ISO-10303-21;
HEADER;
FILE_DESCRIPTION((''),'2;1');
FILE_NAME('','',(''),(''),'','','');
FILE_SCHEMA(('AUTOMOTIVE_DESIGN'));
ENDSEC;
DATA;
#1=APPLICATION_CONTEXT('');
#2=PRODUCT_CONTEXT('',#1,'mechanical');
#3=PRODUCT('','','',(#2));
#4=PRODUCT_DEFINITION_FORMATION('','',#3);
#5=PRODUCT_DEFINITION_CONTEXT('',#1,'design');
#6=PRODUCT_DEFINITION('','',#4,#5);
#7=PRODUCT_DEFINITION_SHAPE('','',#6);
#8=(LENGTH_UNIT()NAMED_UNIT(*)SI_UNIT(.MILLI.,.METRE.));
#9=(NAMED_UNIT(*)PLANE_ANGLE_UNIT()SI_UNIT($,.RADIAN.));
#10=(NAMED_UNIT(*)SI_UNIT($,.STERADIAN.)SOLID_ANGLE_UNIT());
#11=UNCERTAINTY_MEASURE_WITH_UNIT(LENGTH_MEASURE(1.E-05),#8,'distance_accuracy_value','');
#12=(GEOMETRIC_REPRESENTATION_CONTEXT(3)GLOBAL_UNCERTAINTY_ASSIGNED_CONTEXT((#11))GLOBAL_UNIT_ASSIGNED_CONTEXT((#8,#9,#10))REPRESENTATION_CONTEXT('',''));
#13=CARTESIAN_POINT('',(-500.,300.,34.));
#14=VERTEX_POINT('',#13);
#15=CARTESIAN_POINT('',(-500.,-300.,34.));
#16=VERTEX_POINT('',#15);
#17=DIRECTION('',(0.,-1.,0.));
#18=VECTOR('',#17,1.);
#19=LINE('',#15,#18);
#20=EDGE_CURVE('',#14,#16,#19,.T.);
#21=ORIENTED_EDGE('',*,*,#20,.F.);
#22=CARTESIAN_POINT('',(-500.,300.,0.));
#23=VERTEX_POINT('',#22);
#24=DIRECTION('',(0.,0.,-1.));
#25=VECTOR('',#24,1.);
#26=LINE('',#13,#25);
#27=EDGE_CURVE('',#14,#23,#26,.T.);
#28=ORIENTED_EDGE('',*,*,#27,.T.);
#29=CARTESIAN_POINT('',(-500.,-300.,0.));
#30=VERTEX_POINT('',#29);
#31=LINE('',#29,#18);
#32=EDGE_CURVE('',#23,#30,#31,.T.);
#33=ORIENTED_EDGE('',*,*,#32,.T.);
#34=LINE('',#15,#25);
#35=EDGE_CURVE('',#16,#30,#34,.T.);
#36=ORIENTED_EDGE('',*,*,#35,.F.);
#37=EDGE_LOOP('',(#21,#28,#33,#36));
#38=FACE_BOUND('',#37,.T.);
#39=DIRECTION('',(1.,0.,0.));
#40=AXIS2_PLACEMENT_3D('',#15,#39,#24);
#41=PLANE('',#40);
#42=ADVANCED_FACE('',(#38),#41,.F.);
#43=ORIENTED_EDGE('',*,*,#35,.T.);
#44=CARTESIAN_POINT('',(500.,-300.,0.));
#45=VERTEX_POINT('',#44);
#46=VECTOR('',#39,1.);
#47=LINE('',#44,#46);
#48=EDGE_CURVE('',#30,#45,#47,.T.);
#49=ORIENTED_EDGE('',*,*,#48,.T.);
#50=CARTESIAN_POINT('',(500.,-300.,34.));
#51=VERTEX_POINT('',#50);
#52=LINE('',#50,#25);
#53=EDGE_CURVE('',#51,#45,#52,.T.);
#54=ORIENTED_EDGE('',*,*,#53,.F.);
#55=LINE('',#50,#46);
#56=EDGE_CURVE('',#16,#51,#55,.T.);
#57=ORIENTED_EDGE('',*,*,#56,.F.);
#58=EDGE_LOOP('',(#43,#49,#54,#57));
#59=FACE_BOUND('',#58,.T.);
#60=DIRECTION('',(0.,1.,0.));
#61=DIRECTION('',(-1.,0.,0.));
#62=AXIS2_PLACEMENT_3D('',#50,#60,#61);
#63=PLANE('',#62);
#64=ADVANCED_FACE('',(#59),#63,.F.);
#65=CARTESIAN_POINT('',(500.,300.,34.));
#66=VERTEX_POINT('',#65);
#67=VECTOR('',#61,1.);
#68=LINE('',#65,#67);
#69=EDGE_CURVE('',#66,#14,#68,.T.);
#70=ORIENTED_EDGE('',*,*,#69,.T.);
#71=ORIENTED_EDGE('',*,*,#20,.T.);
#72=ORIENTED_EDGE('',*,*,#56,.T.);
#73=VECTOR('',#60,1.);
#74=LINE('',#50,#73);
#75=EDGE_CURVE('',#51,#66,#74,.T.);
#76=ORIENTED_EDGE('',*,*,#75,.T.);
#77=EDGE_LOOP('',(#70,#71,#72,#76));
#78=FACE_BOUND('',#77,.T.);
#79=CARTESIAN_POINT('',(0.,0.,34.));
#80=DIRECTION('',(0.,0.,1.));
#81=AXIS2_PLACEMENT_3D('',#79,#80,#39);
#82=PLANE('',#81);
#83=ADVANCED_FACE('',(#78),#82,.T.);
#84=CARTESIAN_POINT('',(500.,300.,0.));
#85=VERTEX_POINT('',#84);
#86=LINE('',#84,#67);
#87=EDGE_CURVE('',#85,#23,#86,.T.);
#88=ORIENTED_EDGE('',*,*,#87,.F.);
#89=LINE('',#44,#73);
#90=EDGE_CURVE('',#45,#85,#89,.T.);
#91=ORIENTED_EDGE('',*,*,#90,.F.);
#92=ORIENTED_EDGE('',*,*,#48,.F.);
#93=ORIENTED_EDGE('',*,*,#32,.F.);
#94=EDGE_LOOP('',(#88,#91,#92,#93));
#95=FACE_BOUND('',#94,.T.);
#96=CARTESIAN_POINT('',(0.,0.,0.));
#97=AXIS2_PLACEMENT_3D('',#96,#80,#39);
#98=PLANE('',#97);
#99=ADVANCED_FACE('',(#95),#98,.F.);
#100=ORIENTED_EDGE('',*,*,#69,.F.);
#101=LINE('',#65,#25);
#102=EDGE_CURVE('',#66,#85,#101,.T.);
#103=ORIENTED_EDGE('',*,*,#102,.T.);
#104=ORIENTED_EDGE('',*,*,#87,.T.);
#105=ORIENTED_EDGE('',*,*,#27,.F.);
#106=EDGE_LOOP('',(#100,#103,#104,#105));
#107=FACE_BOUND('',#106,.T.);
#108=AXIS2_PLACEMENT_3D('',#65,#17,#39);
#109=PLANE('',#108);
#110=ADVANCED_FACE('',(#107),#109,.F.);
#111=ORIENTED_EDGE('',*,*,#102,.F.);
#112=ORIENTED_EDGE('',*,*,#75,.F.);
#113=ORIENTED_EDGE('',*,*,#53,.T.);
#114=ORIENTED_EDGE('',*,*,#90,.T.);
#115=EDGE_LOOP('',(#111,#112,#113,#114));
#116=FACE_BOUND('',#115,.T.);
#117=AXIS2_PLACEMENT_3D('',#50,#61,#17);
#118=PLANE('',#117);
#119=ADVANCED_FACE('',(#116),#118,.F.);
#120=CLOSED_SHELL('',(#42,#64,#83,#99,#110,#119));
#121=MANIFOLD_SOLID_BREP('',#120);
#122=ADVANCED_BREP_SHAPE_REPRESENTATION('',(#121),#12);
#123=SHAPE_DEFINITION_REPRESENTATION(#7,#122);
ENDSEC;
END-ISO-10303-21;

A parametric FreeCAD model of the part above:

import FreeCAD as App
import Part
import Sketcher

V = App.Vector


def add_polygon(sketch, points):
    """Adds a closed chain of lines whose ends are joined by coincident constraints."""
    first, n = sketch.GeometryCount, len(points)
    for a, b in zip(points, points[1:] + points[:1]):
        sketch.addGeometry(Part.LineSegment(App.Vector(*a, 0), App.Vector(*b, 0)), False)
    for i in range(n):
        sketch.addConstraint(Sketcher.Constraint("Coincident", first + i, 2, first + (i + 1) % n, 1))

doc = App.newDocument("Part")
body = doc.addObject("PartDesign::Body", "Body")

# Sketch on XY plane
sketch1 = doc.addObject("Sketcher::SketchObject", "Sketch")
body.addObject(sketch1)
sketch1.AttachmentSupport = (doc.XY_Plane, [""])
sketch1.MapMode = "FlatFace"
add_polygon(sketch1, [(-500, 300), (-500, -300), (500, -300), (500, 300)])  # lines 0-3
sketch1.addConstraint([
    Sketcher.Constraint("Vertical", 0),
    Sketcher.Constraint("Horizontal", 1),
    Sketcher.Constraint("Vertical", 2),
    Sketcher.Constraint("Horizontal", 3),
    Sketcher.Constraint("Symmetric", 0, 2, 2, 2, -1, 1),
    Sketcher.Constraint("DistanceX", 1, 1, 1, 2, 1000.0),
    Sketcher.Constraint("DistanceY", 0, 2, 0, 1, 600.0),
])
pad1 = doc.addObject("PartDesign::Pad", "Pad")
body.addObject(pad1)
pad1.Profile = sketch1
pad1.Length = 34

doc.recompute()
